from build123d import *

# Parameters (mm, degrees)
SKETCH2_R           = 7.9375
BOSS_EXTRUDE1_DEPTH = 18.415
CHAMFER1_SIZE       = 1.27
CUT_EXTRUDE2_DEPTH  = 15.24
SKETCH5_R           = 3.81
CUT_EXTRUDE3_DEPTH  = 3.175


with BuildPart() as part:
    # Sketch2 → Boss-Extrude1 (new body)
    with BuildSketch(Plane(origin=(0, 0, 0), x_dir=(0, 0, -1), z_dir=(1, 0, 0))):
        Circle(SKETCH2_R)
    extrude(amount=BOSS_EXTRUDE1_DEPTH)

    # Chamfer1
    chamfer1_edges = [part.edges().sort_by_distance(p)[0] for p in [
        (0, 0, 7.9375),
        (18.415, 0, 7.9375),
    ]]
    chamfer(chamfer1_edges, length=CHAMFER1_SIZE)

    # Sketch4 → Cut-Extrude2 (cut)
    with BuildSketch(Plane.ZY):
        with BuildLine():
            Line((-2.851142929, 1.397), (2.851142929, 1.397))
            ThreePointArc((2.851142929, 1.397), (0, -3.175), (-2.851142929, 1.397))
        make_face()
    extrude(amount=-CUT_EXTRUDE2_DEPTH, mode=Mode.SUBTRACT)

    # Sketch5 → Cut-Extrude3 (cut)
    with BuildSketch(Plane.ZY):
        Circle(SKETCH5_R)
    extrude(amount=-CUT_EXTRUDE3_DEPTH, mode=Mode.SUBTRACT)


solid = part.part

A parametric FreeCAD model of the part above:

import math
import FreeCAD as App
import Part
import Sketcher

V = App.Vector
Q = App.Units.Quantity


def edges_at(feature, points):
    """Names of the edges that pass closest to the given points."""
    edges = feature.Shape.Edges
    near = lambda p: min(range(len(edges)), key=lambda i: edges[i].distToShape(Part.Vertex(*p))[0])
    return sorted({f"Edge{near(p) + 1}" for p in points})

doc = App.newDocument("Part")
body = doc.addObject("PartDesign::Body", "Body")

# Sketch on YZ plane
sketch1 = body.newObject("Sketcher::SketchObject", "Sketch")
sketch1.AttachmentSupport = (doc.getObject("YZ_Plane"), [""])
sketch1.MapMode = "FlatFace"
sketch1.addGeometry(Part.Circle(V(0, 0, 0), V(0, 0, 1), 7.9375), False)
sketch1.addConstraint([
    Sketcher.Constraint("Coincident", 0, 3, -1, 1),
    Sketcher.Constraint("Diameter", 0, Q("0.625 in")),
])
pad1 = body.newObject("PartDesign::Pad", "Pad")
pad1.Profile = sketch1
pad1.Length = Q("0.725 in")
doc.recompute()

chamfer = body.newObject("PartDesign::Chamfer", "Chamfer")
chamfer.Base = (pad1, edges_at(pad1, [(0, 0, 7.938), (18.415, 0, 7.938)]))
chamfer.Size = Q("0.05 in")

# Sketch on YZ plane
sketch2 = body.newObject("Sketcher::SketchObject", "Sketch001")
sketch2.AttachmentSupport = (doc.getObject("YZ_Plane"), [""])
sketch2.MapMode = "FlatFace"
sketch2.addGeometry([
    Part.LineSegment(V(1.397, 2.851143, 0), V(1.397, -2.851143, 0)),
    Part.ArcOfCircle(Part.Circle(V(0, 0, 0), V(0, 0, 1), 3.175), math.radians(63.896119), math.radians(296.103881)),
], False)
sketch2.addConstraint([
    Sketcher.Constraint("Coincident", 0, 1, 1, 1),
    Sketcher.Constraint("Coincident", 1, 2, 0, 2),
    Sketcher.Constraint("Vertical", 0),
    Sketcher.Constraint("Coincident", 1, 3, -1, 1),
    Sketcher.Constraint("Radius", 1, Q("0.125 in")),
    Sketcher.Constraint("DistanceX", -1, 1, 0, 1, Q("0.055 in")),
])
pocket1 = body.newObject("PartDesign::Pocket", "Pocket")
pocket1.Profile = sketch2
pocket1.Length = Q("0.6 in")
pocket1.Reversed = True

# Sketch on YZ plane
sketch3 = body.newObject("Sketcher::SketchObject", "Sketch002")
sketch3.AttachmentSupport = (doc.getObject("YZ_Plane"), [""])
sketch3.MapMode = "FlatFace"
sketch3.addGeometry(Part.Circle(V(0, 0, 0), V(0, 0, 1), 3.81), False)
sketch3.addConstraint([
    Sketcher.Constraint("Coincident", 0, 3, -1, 1),
    Sketcher.Constraint("Diameter", 0, Q("0.3 in")),
])
pocket2 = body.newObject("PartDesign::Pocket", "Pocket001")
pocket2.Profile = sketch3
pocket2.Length = Q("0.125 in")
pocket2.Reversed = True

doc.recompute()
